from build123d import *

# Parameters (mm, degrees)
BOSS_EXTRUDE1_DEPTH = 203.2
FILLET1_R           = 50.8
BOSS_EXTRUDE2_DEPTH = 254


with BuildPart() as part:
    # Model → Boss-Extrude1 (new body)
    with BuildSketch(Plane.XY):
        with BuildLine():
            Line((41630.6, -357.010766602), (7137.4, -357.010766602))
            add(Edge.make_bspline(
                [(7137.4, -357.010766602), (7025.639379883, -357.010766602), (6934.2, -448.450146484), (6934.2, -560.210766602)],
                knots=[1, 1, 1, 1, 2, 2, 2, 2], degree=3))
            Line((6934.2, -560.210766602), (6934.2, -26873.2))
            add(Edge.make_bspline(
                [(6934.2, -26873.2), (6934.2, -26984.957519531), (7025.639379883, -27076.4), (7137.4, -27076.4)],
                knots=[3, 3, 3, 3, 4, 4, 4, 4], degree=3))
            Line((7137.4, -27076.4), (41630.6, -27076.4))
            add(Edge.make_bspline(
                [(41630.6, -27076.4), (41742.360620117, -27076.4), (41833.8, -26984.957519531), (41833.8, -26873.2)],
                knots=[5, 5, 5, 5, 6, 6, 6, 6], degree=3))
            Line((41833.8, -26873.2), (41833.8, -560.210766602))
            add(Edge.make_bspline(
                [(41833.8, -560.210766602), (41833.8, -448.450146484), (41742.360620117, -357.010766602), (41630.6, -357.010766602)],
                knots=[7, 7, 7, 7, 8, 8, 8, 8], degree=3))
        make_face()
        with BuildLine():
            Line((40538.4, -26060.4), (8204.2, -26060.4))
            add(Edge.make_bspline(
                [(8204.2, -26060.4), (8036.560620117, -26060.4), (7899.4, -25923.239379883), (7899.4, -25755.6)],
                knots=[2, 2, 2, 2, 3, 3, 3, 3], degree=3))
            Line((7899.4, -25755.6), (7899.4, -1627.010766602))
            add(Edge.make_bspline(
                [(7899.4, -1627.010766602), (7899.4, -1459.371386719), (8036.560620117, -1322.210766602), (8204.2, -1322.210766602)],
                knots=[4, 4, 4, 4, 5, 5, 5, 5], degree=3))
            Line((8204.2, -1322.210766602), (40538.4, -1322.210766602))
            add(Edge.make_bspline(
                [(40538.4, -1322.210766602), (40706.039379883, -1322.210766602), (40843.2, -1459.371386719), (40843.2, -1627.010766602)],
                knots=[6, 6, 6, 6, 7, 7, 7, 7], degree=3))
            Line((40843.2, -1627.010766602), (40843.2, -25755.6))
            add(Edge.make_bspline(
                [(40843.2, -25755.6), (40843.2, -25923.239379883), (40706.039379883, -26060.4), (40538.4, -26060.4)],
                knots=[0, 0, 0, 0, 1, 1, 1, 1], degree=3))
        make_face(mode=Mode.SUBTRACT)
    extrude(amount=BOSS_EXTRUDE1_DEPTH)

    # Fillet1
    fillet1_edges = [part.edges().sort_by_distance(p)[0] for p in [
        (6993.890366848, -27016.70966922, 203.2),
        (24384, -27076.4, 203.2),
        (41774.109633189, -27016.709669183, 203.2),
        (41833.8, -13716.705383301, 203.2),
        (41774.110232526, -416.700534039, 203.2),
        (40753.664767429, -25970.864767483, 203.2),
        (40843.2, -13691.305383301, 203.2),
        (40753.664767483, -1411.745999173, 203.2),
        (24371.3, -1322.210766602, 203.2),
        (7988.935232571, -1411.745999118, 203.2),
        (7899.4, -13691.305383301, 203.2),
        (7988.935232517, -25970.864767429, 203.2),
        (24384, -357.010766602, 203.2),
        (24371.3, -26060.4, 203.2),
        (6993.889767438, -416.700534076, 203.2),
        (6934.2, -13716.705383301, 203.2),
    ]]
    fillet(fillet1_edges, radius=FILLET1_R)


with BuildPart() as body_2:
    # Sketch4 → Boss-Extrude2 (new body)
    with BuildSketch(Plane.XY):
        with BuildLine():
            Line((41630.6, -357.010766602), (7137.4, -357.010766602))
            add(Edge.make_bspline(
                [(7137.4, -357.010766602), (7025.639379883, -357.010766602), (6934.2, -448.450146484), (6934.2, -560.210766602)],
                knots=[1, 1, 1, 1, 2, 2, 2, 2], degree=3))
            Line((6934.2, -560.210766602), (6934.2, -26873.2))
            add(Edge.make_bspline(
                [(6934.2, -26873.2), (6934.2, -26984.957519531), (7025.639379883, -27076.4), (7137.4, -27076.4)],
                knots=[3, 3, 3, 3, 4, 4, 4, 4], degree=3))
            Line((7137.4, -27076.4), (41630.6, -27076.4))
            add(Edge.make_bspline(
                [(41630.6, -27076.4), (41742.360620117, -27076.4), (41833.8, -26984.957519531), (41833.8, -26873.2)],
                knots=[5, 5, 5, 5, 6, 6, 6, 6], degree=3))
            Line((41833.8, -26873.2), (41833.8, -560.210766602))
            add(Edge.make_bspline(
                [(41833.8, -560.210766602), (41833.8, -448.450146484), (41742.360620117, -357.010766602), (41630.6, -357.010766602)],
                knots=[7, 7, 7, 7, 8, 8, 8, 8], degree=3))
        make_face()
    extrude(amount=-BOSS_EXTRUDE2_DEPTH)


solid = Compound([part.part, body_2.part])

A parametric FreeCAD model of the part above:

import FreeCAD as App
import Part
import Sketcher
from FreeCAD import Vector


def edges_at(feature, points):
    """Names of the edges that pass closest to the given points."""
    edges = feature.Shape.Edges
    near = lambda p: min(range(len(edges)), key=lambda i: edges[i].distToShape(Part.Vertex(*p))[0])
    return sorted({f"Edge{near(p) + 1}" for p in points})

doc = App.newDocument("Part")
params = doc.addObject("Spreadsheet::Sheet", "Params")
for row, (alias, value) in enumerate([
    ("pad1_length", "8 in"),
    ("fillet_radius", "2 in"),
    ("pad2_length", "10 in"),
], start=1):
    params.set(f"A{row}", alias)
    params.set(f"B{row}", "=" + value)
    params.setAlias(f"B{row}", alias)

body = doc.addObject("PartDesign::Body", "Body")

# Sketch on XY plane
sketch1 = body.newObject("Sketcher::SketchObject", "Sketch")
sketch1.AttachmentSupport = (doc.getObject("XY_Plane"), [""])
sketch1.MapMode = "FlatFace"
sketch1.addGeometry([
    Part.LineSegment(Vector(41630.6, -357.010767, 0), Vector(7137.4, -357.010767, 0)),  # 0
    Part.BSplineCurve([Vector(7137.4, -357.010767, 0), Vector(7025.63938, -357.010767, 0), Vector(6934.2, -448.450146, 0), Vector(6934.2, -560.210767, 0)], [4, 4], [1, 2], False, 3, [1, 1, 1, 1], False),  # 1
    Part.LineSegment(Vector(6934.2, -560.210767, 0), Vector(6934.2, -26873.2, 0)),  # 2
    Part.BSplineCurve([Vector(6934.2, -26873.2, 0), Vector(6934.2, -26984.95752, 0), Vector(7025.63938, -27076.4, 0), Vector(7137.4, -27076.4, 0)], [4, 4], [3, 4], False, 3, [1, 1, 1, 1], False),  # 3
    Part.LineSegment(Vector(7137.4, -27076.4, 0), Vector(41630.6, -27076.4, 0)),  # 4
    Part.BSplineCurve([Vector(41630.6, -27076.4, 0), Vector(41742.36062, -27076.4, 0), Vector(41833.8, -26984.95752, 0), Vector(41833.8, -26873.2, 0)], [4, 4], [5, 6], False, 3, [1, 1, 1, 1], False),  # 5
    Part.LineSegment(Vector(41833.8, -26873.2, 0), Vector(41833.8, -560.210767, 0)),  # 6
    Part.BSplineCurve([Vector(41833.8, -560.210767, 0), Vector(41833.8, -448.450146, 0), Vector(41742.36062, -357.010767, 0), Vector(41630.6, -357.010767, 0)], [4, 4], [7, 8], False, 3, [1, 1, 1, 1], False),  # 7
    Part.BSplineCurve([Vector(40843.2, -25755.6, 0), Vector(40843.2, -25923.23938, 0), Vector(40706.03938, -26060.4, 0), Vector(40538.4, -26060.4, 0)], [4, 4], [0, 1], False, 3, [1, 1, 1, 1], False),  # 8
    Part.LineSegment(Vector(40538.4, -26060.4, 0), Vector(8204.2, -26060.4, 0)),  # 9
    Part.BSplineCurve([Vector(8204.2, -26060.4, 0), Vector(8036.56062, -26060.4, 0), Vector(7899.4, -25923.23938, 0), Vector(7899.4, -25755.6, 0)], [4, 4], [2, 3], False, 3, [1, 1, 1, 1], False),  # 10
    Part.LineSegment(Vector(7899.4, -25755.6, 0), Vector(7899.4, -1627.010767, 0)),  # 11
    Part.BSplineCurve([Vector(7899.4, -1627.010767, 0), Vector(7899.4, -1459.371387, 0), Vector(8036.56062, -1322.210767, 0), Vector(8204.2, -1322.210767, 0)], [4, 4], [4, 5], False, 3, [1, 1, 1, 1], False),  # 12
    Part.LineSegment(Vector(8204.2, -1322.210767, 0), Vector(40538.4, -1322.210767, 0)),  # 13
    Part.BSplineCurve([Vector(40538.4, -1322.210767, 0), Vector(40706.03938, -1322.210767, 0), Vector(40843.2, -1459.371387, 0), Vector(40843.2, -1627.010767, 0)], [4, 4], [6, 7], False, 3, [1, 1, 1, 1], False),  # 14
    Part.LineSegment(Vector(40843.2, -1627.010767, 0), Vector(40843.2, -25755.6, 0)),  # 15
], False)
sketch1.addConstraint([
    Sketcher.Constraint("Block", 1),
    Sketcher.Constraint("Block", 3),
    Sketcher.Constraint("Block", 5),
    Sketcher.Constraint("Block", 7),
    Sketcher.Constraint("Block", 8),
    Sketcher.Constraint("Block", 10),
    Sketcher.Constraint("Block", 12),
    Sketcher.Constraint("Block", 14),
    Sketcher.Constraint("Coincident", 0, 2, 1, 1),
    Sketcher.Constraint("Coincident", 1, 2, 2, 1),
    Sketcher.Constraint("Coincident", 2, 2, 3, 1),
    Sketcher.Constraint("Coincident", 3, 2, 4, 1),
    Sketcher.Constraint("Coincident", 4, 2, 5, 1),
    Sketcher.Constraint("Coincident", 5, 2, 6, 1),
    Sketcher.Constraint("Coincident", 6, 2, 7, 1),
    Sketcher.Constraint("Coincident", 7, 2, 0, 1),
    Sketcher.Constraint("Coincident", 8, 2, 9, 1),
    Sketcher.Constraint("Coincident", 9, 2, 10, 1),
    Sketcher.Constraint("Coincident", 10, 2, 11, 1),
    Sketcher.Constraint("Coincident", 11, 2, 12, 1),
    Sketcher.Constraint("Coincident", 12, 2, 13, 1),
    Sketcher.Constraint("Coincident", 13, 2, 14, 1),
    Sketcher.Constraint("Coincident", 14, 2, 15, 1),
    Sketcher.Constraint("Coincident", 15, 2, 8, 1),
])
pad1 = body.newObject("PartDesign::Pad", "Pad")
pad1.Profile = sketch1
pad1.setExpression("Length", "Params.pad1_length")
doc.recompute()

fillet = body.newObject("PartDesign::Fillet", "Fillet")
fillet.Base = (pad1, edges_at(pad1, [
    (6993.89, -27016.71, 203.2),
    (24384, -27076.4, 203.2),
    (41774.11, -27016.71, 203.2),
    (41833.8, -13716.705, 203.2),
    (41774.11, -416.701, 203.2),
    (40753.665, -25970.865, 203.2),
    (40843.2, -13691.305, 203.2),
    (40753.665, -1411.746, 203.2),
    (24371.3, -1322.211, 203.2),
    (7988.935, -1411.746, 203.2),
    (7899.4, -13691.305, 203.2),
    (7988.935, -25970.865, 203.2),
    (24384, -357.011, 203.2),
    (24371.3, -26060.4, 203.2),
    (6993.89, -416.701, 203.2),
    (6934.2, -13716.705, 203.2),
]))
fillet.setExpression("Radius", "Params.fillet_radius")
body2 = doc.addObject("PartDesign::Body", "Body001")

# Sketch on XY plane
sketch2 = body2.newObject("Sketcher::SketchObject", "Sketch001")
sketch2.AttachmentSupport = (doc.getObject("XY_Plane001"), [""])
sketch2.MapMode = "FlatFace"
sketch2.addGeometry([
    Part.LineSegment(Vector(41630.6, -357.010767, 0), Vector(7137.4, -357.010767, 0)),  # 0
    Part.BSplineCurve([Vector(7137.4, -357.010767, 0), Vector(7025.63938, -357.010767, 0), Vector(6934.2, -448.450146, 0), Vector(6934.2, -560.210767, 0)], [4, 4], [1, 2], False, 3, [1, 1, 1, 1], False),  # 1
    Part.LineSegment(Vector(6934.2, -560.210767, 0), Vector(6934.2, -26873.2, 0)),  # 2
    Part.BSplineCurve([Vector(6934.2, -26873.2, 0), Vector(6934.2, -26984.95752, 0), Vector(7025.63938, -27076.4, 0), Vector(7137.4, -27076.4, 0)], [4, 4], [3, 4], False, 3, [1, 1, 1, 1], False),  # 3
    Part.LineSegment(Vector(7137.4, -27076.4, 0), Vector(41630.6, -27076.4, 0)),  # 4
    Part.BSplineCurve([Vector(41630.6, -27076.4, 0), Vector(41742.36062, -27076.4, 0), Vector(41833.8, -26984.95752, 0), Vector(41833.8, -26873.2, 0)], [4, 4], [5, 6], False, 3, [1, 1, 1, 1], False),  # 5
    Part.LineSegment(Vector(41833.8, -26873.2, 0), Vector(41833.8, -560.210767, 0)),  # 6
    Part.BSplineCurve([Vector(41833.8, -560.210767, 0), Vector(41833.8, -448.450146, 0), Vector(41742.36062, -357.010767, 0), Vector(41630.6, -357.010767, 0)], [4, 4], [7, 8], False, 3, [1, 1, 1, 1], False),  # 7
], False)
sketch2.addConstraint([
    Sketcher.Constraint("Block", 1),
    Sketcher.Constraint("Block", 3),
    Sketcher.Constraint("Block", 5),
    Sketcher.Constraint("Block", 7),
    Sketcher.Constraint("Coincident", 0, 2, 1, 1),
    Sketcher.Constraint("Coincident", 1, 2, 2, 1),
    Sketcher.Constraint("Coincident", 2, 2, 3, 1),
    Sketcher.Constraint("Coincident", 3, 2, 4, 1),
    Sketcher.Constraint("Coincident", 4, 2, 5, 1),
    Sketcher.Constraint("Coincident", 5, 2, 6, 1),
    Sketcher.Constraint("Coincident", 6, 2, 7, 1),
    Sketcher.Constraint("Coincident", 7, 2, 0, 1),
])
pad2 = body2.newObject("PartDesign::Pad", "Pad001")
pad2.Profile = sketch2
pad2.setExpression("Length", "Params.pad2_length")
pad2.Reversed = True

doc.recompute()
